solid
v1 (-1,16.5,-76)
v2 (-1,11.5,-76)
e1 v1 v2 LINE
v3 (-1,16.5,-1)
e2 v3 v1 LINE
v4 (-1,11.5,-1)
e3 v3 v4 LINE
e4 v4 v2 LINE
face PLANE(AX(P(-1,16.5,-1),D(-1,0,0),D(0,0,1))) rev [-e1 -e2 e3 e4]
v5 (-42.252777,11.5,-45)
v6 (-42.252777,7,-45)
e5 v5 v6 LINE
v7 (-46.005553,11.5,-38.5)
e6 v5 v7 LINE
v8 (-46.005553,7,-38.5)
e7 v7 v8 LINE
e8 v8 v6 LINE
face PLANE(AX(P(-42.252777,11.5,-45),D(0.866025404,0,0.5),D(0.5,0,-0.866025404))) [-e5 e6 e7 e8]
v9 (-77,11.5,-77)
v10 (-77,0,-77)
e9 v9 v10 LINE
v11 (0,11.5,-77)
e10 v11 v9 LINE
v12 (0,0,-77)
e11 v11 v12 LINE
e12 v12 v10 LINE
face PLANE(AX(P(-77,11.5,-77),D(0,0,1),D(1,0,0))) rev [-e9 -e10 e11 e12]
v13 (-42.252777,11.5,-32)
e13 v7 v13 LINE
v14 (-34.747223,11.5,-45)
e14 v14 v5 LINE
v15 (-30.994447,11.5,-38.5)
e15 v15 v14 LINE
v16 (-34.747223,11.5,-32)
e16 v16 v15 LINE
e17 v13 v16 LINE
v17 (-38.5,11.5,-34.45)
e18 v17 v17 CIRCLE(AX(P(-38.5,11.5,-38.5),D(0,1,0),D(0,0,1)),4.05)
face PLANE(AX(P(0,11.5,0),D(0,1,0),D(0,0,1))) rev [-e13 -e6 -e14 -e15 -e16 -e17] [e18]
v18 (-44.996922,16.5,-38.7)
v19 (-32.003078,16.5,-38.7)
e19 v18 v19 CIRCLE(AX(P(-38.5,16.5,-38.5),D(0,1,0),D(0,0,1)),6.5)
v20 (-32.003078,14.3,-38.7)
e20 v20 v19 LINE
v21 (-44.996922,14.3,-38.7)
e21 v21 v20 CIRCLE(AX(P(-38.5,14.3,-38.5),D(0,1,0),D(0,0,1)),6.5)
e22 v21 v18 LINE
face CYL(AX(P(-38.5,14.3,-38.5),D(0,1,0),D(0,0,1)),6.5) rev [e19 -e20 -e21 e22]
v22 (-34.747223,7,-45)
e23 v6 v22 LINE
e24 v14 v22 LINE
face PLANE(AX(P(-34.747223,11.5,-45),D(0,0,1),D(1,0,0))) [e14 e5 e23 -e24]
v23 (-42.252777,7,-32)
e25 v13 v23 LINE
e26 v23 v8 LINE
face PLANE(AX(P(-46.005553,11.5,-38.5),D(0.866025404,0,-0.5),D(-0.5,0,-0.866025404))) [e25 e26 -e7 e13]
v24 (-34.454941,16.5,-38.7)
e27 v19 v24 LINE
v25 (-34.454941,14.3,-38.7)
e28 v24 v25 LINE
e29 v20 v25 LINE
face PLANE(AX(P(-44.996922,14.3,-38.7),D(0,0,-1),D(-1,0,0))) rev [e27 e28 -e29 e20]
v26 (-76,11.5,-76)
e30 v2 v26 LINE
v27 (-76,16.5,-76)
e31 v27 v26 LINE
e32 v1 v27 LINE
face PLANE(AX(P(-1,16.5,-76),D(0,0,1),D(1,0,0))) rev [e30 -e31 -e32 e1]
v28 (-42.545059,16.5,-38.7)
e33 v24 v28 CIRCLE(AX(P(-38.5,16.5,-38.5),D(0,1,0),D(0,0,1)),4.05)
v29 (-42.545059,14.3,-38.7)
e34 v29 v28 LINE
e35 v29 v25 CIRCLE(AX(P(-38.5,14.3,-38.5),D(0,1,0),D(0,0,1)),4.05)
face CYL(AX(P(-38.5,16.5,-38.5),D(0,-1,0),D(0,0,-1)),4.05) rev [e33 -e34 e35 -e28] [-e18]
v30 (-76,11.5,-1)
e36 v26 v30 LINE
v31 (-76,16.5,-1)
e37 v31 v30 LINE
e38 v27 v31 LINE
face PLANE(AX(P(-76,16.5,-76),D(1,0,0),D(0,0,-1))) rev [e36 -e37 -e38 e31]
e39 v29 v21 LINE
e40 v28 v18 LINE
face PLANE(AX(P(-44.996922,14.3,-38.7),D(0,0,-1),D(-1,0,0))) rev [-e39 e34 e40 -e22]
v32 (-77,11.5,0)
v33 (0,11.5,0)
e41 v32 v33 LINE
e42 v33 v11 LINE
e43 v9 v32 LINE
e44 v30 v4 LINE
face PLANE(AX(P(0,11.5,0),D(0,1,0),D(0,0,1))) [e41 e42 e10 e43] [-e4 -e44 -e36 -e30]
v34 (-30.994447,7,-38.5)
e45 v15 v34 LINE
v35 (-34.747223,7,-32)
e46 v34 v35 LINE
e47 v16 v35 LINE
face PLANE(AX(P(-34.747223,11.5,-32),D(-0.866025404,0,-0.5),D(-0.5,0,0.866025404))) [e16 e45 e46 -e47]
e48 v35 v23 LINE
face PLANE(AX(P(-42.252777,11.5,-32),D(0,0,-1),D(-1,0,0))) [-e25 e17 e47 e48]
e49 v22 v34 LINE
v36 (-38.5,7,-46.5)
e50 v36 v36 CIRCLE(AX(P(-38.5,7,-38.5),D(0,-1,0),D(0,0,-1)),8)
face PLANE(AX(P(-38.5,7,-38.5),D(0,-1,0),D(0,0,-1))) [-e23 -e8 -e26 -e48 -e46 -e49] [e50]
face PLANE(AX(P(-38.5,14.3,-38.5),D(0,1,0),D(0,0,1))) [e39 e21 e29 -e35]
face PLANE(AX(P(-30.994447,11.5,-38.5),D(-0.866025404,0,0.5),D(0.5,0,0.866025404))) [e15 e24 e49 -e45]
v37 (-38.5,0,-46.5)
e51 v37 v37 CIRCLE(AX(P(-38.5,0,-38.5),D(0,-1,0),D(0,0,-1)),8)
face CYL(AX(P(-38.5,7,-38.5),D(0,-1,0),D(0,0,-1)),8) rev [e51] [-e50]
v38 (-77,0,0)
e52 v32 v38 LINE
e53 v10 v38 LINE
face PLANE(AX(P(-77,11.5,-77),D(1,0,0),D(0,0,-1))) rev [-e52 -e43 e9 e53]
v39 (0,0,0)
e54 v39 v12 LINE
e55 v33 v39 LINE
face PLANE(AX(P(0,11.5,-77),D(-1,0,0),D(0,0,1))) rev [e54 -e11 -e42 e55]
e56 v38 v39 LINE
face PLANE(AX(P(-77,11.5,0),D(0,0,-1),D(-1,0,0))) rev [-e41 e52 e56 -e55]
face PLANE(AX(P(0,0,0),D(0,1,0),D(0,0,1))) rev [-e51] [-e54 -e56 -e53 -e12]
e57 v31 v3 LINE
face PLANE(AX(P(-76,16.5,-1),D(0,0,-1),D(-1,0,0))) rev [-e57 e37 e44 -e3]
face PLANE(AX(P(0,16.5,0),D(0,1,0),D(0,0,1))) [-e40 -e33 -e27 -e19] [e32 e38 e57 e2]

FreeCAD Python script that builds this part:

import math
import FreeCAD as App
import Part
import Sketcher

V = App.Vector
Q = App.Units.Quantity

doc = App.newDocument("Part")
body = doc.addObject("PartDesign::Body", "Body")

sketch1 = body.newObject("Sketcher::SketchObject", "Sketch")
sketch1.AttachmentSupport = (doc.getObject("XZ_Plane"), [""])
sketch1.MapMode = "FlatFace"
sketch1.addGeometry([
    Part.LineSegment(V(-77, -77, 0), V(-77, 0, 0)),
    Part.LineSegment(V(-77, 0, 0), V(0, 0, 0)),
    Part.LineSegment(V(0, 0, 0), V(0, -77, 0)),
    Part.LineSegment(V(0, -77, 0), V(-77, -77, 0)),
    Part.LineSegment(V(-35, -45, 0), V(-31, -38, 0)),
    Part.LineSegment(V(-31, -38, 0), V(-35, -32, 0)),
    Part.LineSegment(V(-35, -32, 0), V(-42, -32, 0)),
    Part.LineSegment(V(-42, -32, 0), V(-46, -38, 0)),
    Part.LineSegment(V(-46, -38, 0), V(-42, -45, 0)),
    Part.LineSegment(V(-42, -45, 0), V(-35, -45, 0)),
], False)
sketch1.addConstraint([
    Sketcher.Constraint("Coincident", 0, 2, 1, 1),
    Sketcher.Constraint("Coincident", 1, 2, 2, 1),
    Sketcher.Constraint("Coincident", 2, 2, 3, 1),
    Sketcher.Constraint("Coincident", 3, 2, 0, 1),
    Sketcher.Constraint("Coincident", 4, 2, 5, 1),
    Sketcher.Constraint("Coincident", 5, 2, 6, 1),
    Sketcher.Constraint("Coincident", 6, 2, 7, 1),
    Sketcher.Constraint("Coincident", 7, 2, 8, 1),
    Sketcher.Constraint("Coincident", 8, 2, 9, 1),
    Sketcher.Constraint("Coincident", 9, 2, 4, 1),
    Sketcher.Constraint("Vertical", 0),
    Sketcher.Constraint("Horizontal", 1),
    Sketcher.Constraint("Vertical", 2),
    Sketcher.Constraint("Horizontal", 3),
    Sketcher.Constraint("Horizontal", 6),
    Sketcher.Constraint("Horizontal", 9),
    Sketcher.Constraint("Coincident", 1, 2, -1, 1),
    Sketcher.Constraint("Parallel", 4, 7),
    Sketcher.Constraint("Parallel", 5, 8),
    Sketcher.Constraint("Horizontal", 4, 2, 7, 2),
    Sketcher.Constraint("Vertical", 6, 2, 8, 2),
    Sketcher.Constraint("Vertical", 5, 2, 9, 2),
    Sketcher.Constraint("Equal", 3, 0),
    Sketcher.Constraint("DistanceX", 1, 1, 1, 2, 77.0),
    Sketcher.Constraint("Angle", 4, Q("60 deg")),
    Sketcher.Constraint("DistanceY", 5, 2, -1, 1, 32.0),
    Sketcher.Constraint("DistanceY", 8, 2, -1, 1, 45.0),
    Sketcher.Constraint("DistanceX", 6, 2, 6, 1, 7.505554),
    Sketcher.Constraint("DistanceX", 4, 2, -1, 1, 30.994447),
])
pad1 = body.newObject("PartDesign::Pad", "Pad")
pad1.Profile = sketch1
pad1.Length = 11.5
pad1.Reversed = True

sketch2 = body.newObject("Sketcher::SketchObject", "Sketch001")
sketch2.AttachmentSupport = (doc.getObject("XZ_Plane"), [""])
sketch2.MapMode = "FlatFace"
sketch2.AttachmentOffset = App.Placement(V(0, 0, -11.5), App.Rotation())
sketch2.addGeometry([
    Part.LineSegment(V(-76, -76, 0), V(-76, -1, 0)),
    Part.LineSegment(V(-76, -1, 0), V(-1, -1, 0)),
    Part.LineSegment(V(-1, -1, 0), V(-1, -76, 0)),
    Part.LineSegment(V(-1, -76, 0), V(-76, -76, 0)),
    Part.Circle(V(-38.5, -38.5, 0), V(0, 0, 1), 4),
], False)
sketch2.addConstraint([
    Sketcher.Constraint("Coincident", 0, 2, 1, 1),
    Sketcher.Constraint("Coincident", 1, 2, 2, 1),
    Sketcher.Constraint("Coincident", 2, 2, 3, 1),
    Sketcher.Constraint("Coincident", 3, 2, 0, 1),
    Sketcher.Constraint("Vertical", 0),
    Sketcher.Constraint("Horizontal", 1),
    Sketcher.Constraint("Vertical", 2),
    Sketcher.Constraint("Horizontal", 3),
    Sketcher.Constraint("Equal", 3, 0),
    Sketcher.Constraint("Diameter", 4, 8.1),
    Sketcher.Constraint("DistanceX", 1, 1, 1, 2, 75.0),
    Sketcher.Constraint("DistanceX", 0, 2, -1, 1, 76.0),
    Sketcher.Constraint("DistanceY", 0, 2, -1, 1, 1.0),
    Sketcher.Constraint("DistanceX", 4, 3, -1, 1, 38.5),
    Sketcher.Constraint("DistanceY", 4, 3, -1, 1, 38.5),
])
pad2 = body.newObject("PartDesign::Pad", "Pad001")
pad2.Profile = sketch2
pad2.Length = 5
pad2.Reversed = True

sketch3 = body.newObject("Sketcher::SketchObject", "Sketch002")
sketch3.AttachmentSupport = (doc.getObject("XZ_Plane"), [""])
sketch3.MapMode = "FlatFace"
sketch3.addGeometry(Part.Circle(V(-38, -38, 0), V(0, 0, 1), 8), False)
sketch3.addConstraint([
    Sketcher.Constraint("Diameter", 0, 16.0),
    Sketcher.Constraint("DistanceX", 0, 3, -1, 1, 38.5),
    Sketcher.Constraint("DistanceY", 0, 3, -1, 1, 38.5),
])
pocket1 = body.newObject("PartDesign::Pocket", "Pocket")
pocket1.Profile = sketch3
pocket1.Length = 7

sketch4 = body.newObject("Sketcher::SketchObject", "Sketch003")
sketch4.AttachmentSupport = (doc.getObject("XZ_Plane"), [""])
sketch4.MapMode = "FlatFace"
sketch4.AttachmentOffset = App.Placement(V(0, 0, -16.5), App.Rotation())
sketch4.addGeometry([
    Part.LineSegment(V(-32, -39, 0), V(-45, -39, 0)),
    Part.ArcOfCircle(Part.Circle(V(-38, -38, 0), V(0, 0, 1), 6), math.radians(-2), math.radians(182)),
], False)
sketch4.addConstraint([
    Sketcher.Constraint("Coincident", 0, 1, 1, 1),
    Sketcher.Constraint("Coincident", 1, 2, 0, 2),
    Sketcher.Constraint("Horizontal", 0),
    Sketcher.Constraint("Radius", 1, 6.5),
    Sketcher.Constraint("DistanceX", 1, 3, -1, 1, 38.5),
    Sketcher.Constraint("DistanceY", 1, 3, -1, 1, 38.5),
    Sketcher.Constraint("DistanceY", 0, 1, -1, 1, 38.7),
])
pocket2 = body.newObject("PartDesign::Pocket", "Pocket001")
pocket2.Profile = sketch4
pocket2.Length = 2.2
pocket2.Reversed = True

doc.recompute()
